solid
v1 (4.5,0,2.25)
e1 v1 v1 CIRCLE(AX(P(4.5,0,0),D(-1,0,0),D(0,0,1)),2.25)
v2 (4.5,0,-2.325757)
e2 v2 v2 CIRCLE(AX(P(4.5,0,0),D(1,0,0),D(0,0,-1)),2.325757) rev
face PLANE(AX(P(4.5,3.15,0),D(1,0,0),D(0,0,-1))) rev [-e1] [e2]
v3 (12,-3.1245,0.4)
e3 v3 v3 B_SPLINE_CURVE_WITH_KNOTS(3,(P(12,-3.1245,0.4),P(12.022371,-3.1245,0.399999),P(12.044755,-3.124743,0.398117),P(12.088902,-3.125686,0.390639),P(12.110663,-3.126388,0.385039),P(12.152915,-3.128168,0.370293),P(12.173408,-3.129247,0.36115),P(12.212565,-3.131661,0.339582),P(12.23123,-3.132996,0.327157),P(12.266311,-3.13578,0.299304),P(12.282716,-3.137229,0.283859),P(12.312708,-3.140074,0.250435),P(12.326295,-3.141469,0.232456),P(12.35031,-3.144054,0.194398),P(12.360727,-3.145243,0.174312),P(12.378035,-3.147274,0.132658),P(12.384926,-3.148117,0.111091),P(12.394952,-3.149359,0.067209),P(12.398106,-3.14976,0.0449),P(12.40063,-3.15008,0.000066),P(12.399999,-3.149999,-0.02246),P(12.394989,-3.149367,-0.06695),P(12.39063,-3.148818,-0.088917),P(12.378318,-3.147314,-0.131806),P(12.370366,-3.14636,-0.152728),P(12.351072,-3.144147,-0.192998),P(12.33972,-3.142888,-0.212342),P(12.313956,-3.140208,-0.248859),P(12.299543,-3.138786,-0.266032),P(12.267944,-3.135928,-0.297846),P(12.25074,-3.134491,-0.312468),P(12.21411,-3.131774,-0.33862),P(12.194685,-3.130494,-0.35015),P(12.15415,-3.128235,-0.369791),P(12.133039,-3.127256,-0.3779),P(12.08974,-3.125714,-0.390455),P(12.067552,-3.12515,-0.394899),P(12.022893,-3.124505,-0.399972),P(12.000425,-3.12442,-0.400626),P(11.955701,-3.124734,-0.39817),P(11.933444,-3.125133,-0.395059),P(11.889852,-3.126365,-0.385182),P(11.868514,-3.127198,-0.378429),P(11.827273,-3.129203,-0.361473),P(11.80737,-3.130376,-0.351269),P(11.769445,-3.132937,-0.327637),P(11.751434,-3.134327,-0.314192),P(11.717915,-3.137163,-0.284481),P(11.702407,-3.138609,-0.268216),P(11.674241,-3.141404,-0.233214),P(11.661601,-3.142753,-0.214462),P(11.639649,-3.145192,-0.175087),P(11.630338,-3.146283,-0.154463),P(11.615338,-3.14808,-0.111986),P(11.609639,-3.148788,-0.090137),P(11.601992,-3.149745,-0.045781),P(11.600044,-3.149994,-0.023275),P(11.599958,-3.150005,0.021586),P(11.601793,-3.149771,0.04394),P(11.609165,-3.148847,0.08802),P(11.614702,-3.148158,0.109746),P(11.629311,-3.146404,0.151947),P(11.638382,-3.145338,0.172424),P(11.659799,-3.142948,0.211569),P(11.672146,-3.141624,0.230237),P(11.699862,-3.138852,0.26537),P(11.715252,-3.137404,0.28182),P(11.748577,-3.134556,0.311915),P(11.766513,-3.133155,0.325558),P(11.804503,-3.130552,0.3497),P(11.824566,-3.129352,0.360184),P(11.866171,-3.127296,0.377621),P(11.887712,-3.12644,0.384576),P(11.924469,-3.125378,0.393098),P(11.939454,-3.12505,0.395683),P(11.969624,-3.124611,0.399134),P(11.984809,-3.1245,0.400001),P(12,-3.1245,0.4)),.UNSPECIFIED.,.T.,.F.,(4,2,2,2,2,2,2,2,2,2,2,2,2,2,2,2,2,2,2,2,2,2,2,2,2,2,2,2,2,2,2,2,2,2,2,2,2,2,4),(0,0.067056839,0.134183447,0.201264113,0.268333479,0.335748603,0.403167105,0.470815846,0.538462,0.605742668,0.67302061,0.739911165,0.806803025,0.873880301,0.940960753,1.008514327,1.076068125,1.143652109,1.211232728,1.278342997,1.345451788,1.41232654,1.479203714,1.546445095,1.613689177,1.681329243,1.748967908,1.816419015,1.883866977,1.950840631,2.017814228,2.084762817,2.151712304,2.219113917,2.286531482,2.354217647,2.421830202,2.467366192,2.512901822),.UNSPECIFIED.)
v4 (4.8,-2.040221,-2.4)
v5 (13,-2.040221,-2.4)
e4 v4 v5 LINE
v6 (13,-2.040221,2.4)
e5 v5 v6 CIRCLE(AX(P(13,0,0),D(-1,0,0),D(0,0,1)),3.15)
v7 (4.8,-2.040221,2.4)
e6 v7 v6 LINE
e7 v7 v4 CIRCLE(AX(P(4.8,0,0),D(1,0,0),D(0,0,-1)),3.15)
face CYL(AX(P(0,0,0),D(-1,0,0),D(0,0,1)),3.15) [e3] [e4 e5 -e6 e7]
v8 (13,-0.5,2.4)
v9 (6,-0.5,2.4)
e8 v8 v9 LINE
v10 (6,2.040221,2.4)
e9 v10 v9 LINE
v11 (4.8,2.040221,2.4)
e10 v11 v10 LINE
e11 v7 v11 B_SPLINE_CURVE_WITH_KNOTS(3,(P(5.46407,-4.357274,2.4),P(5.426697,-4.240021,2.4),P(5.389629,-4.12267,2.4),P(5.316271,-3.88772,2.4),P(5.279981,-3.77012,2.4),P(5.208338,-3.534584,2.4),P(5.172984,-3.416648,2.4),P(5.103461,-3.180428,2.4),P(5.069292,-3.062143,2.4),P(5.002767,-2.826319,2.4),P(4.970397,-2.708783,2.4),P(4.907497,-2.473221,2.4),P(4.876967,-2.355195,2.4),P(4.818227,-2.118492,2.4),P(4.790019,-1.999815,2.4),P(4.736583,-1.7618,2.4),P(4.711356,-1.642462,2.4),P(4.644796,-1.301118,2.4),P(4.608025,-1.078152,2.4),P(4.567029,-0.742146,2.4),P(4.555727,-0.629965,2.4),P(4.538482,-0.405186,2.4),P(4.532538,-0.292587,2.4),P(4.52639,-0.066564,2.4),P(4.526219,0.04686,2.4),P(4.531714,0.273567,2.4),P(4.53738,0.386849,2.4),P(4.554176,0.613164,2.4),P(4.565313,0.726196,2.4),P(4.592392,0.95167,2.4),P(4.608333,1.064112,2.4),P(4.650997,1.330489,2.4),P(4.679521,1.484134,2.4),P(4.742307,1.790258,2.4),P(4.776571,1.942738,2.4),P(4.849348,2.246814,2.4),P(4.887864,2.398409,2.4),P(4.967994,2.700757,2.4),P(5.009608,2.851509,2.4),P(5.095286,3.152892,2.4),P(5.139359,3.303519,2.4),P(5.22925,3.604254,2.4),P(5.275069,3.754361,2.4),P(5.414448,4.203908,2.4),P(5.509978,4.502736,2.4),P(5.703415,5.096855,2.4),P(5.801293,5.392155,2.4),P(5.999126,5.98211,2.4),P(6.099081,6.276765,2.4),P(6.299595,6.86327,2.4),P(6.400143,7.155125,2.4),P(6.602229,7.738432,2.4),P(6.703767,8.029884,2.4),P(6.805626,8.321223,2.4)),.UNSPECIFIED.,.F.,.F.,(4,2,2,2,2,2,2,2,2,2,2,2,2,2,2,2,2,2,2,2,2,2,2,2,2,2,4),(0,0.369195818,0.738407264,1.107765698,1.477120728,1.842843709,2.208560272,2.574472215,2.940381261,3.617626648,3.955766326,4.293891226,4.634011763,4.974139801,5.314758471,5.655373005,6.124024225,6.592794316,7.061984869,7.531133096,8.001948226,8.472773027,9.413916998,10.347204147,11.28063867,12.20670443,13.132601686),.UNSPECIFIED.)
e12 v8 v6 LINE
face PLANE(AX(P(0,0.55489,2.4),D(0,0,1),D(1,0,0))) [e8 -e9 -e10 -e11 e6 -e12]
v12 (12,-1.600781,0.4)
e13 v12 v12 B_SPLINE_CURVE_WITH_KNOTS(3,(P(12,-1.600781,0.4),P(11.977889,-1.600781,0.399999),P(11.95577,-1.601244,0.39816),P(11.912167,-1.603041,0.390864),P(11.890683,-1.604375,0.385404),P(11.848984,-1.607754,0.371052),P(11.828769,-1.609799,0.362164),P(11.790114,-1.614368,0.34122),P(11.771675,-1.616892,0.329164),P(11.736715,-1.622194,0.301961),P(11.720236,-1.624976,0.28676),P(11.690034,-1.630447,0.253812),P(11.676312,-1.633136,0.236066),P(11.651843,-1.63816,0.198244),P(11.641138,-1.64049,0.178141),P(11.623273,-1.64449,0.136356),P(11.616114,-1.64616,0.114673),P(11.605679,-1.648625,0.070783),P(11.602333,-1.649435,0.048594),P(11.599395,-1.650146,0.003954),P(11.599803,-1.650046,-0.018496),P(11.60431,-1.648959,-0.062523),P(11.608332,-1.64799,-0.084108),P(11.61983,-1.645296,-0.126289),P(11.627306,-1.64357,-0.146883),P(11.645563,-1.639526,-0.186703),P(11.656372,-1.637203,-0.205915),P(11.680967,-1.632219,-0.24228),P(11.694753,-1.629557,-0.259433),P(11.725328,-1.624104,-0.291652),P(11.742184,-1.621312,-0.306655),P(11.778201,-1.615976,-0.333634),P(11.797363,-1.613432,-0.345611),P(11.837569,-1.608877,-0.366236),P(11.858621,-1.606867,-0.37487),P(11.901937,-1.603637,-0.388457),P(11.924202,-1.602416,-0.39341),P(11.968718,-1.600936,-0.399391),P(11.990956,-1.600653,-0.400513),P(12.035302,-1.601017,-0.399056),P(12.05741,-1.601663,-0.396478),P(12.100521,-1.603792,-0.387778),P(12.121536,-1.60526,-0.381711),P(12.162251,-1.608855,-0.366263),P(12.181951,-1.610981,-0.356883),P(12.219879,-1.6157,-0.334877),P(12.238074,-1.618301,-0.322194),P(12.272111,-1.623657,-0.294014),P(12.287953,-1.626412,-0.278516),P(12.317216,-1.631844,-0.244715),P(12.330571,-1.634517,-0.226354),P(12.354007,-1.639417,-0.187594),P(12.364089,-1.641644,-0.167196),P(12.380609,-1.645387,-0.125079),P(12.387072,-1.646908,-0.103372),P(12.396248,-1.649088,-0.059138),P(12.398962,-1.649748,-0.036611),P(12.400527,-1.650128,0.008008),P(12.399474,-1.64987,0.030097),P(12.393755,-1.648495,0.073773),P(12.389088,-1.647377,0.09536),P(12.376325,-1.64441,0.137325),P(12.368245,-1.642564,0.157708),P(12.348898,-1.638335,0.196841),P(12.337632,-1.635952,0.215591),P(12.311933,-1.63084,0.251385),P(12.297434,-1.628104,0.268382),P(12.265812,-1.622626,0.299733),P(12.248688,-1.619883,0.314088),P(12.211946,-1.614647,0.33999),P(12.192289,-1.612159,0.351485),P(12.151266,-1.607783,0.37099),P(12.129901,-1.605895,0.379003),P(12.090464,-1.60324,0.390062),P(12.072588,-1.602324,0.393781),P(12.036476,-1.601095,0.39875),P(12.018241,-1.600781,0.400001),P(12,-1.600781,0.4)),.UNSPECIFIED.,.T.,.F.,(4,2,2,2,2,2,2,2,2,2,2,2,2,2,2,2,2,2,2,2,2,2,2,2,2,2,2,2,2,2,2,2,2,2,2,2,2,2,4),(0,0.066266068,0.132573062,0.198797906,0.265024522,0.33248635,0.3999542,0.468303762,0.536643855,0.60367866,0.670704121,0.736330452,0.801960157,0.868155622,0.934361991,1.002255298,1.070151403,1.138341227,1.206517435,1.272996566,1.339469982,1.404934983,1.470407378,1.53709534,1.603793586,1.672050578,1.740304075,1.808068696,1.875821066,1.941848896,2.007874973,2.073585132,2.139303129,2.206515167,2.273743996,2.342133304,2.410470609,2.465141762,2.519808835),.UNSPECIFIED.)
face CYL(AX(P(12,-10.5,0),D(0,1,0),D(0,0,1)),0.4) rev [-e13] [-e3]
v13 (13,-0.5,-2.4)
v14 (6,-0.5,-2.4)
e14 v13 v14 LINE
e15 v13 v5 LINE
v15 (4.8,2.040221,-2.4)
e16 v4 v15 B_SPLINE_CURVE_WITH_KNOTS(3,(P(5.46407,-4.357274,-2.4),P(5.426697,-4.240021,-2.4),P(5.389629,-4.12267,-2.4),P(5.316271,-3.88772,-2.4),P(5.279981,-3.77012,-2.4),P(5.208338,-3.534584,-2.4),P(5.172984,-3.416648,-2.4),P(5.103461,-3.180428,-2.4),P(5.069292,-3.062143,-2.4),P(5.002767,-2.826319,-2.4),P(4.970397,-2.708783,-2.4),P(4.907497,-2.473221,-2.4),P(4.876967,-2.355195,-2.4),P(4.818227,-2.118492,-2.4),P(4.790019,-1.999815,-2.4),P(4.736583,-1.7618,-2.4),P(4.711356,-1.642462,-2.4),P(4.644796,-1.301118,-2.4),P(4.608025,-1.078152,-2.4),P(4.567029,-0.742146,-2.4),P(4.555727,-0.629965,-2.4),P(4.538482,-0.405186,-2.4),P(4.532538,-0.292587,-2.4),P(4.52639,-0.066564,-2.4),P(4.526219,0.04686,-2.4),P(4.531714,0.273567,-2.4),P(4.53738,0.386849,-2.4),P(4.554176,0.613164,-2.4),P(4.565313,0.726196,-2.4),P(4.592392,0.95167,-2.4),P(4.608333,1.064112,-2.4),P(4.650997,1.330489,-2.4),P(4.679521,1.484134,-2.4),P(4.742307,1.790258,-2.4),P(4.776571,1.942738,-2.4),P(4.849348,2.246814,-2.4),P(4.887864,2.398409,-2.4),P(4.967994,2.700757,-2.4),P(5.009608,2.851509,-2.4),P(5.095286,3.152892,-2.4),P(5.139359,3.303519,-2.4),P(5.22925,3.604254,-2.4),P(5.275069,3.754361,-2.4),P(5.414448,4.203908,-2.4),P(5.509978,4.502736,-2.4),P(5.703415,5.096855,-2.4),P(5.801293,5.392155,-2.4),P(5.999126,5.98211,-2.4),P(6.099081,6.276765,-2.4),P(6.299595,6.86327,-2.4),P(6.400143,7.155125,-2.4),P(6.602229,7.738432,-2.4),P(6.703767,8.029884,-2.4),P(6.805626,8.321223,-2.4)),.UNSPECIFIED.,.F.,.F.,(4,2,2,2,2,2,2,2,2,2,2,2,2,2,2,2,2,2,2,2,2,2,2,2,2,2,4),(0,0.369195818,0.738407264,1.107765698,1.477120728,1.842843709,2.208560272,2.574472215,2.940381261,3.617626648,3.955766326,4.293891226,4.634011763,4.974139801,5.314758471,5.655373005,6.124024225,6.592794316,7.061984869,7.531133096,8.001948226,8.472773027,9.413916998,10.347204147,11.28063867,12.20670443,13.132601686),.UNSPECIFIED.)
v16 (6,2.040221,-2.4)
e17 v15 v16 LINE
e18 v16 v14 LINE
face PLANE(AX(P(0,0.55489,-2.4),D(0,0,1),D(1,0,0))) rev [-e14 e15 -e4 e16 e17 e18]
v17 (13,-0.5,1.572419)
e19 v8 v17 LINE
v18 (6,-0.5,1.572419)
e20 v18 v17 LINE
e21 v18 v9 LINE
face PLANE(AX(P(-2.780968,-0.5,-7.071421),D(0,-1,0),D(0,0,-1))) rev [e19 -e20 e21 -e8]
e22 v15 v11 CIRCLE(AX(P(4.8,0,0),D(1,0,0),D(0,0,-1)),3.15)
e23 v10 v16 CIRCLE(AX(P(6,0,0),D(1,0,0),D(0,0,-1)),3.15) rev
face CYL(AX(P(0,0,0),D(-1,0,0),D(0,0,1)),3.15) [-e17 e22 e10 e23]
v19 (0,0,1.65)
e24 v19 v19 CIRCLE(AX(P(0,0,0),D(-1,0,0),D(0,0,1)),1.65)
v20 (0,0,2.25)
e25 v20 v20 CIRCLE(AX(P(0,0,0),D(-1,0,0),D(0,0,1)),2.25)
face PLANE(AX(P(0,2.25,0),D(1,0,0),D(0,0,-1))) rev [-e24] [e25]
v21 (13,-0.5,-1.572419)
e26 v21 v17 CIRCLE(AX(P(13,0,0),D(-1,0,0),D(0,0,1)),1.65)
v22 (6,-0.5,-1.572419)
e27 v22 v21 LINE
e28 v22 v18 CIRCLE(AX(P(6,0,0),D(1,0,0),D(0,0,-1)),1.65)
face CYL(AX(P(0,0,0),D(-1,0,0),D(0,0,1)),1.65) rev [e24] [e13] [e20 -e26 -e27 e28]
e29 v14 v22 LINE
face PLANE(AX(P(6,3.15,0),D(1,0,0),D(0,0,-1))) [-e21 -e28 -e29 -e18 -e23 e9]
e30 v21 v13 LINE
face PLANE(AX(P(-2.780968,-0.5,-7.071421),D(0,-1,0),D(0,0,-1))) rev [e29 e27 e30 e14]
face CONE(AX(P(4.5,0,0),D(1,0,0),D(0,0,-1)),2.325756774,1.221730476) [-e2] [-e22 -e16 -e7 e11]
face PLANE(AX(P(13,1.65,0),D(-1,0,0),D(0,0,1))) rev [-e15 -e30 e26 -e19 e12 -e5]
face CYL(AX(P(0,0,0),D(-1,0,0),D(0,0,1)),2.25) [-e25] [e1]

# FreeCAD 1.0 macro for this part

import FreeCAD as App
import Part
import Sketcher

V = App.Vector
Q = App.Units.Quantity


def edges_at(feature, points):
    """Names of the edges that pass closest to the given points."""
    edges = feature.Shape.Edges
    near = lambda p: min(range(len(edges)), key=lambda i: edges[i].distToShape(Part.Vertex(*p))[0])
    return sorted({f"Edge{near(p) + 1}" for p in points})

doc = App.newDocument("Part")
body = doc.addObject("PartDesign::Body", "Body")

sketch1 = body.newObject("Sketcher::SketchObject", "Sketch")
sketch1.AttachmentSupport = (doc.getObject("XY_Plane"), [""])
sketch1.MapMode = "FlatFace"
sketch1.addGeometry([
    Part.LineSegment(V(0, 1.6, 0), V(13, 1.6, 0)),
    Part.LineSegment(V(13, 1.6, 0), V(13, 3.1, 0)),
    Part.LineSegment(V(13, 3.1, 0), V(4.5, 3.1, 0)),
    Part.LineSegment(V(4.5, 3.1, 0), V(4.5, 2.2, 0)),
    Part.LineSegment(V(4.5, 2.2, 0), V(0, 2.2, 0)),
    Part.LineSegment(V(0, 2.2, 0), V(0, 1.6, 0)),
], False)
sketch1.addConstraint([
    Sketcher.Constraint("Coincident", 0, 2, 1, 1),
    Sketcher.Constraint("Coincident", 1, 2, 2, 1),
    Sketcher.Constraint("Coincident", 2, 2, 3, 1),
    Sketcher.Constraint("Coincident", 3, 2, 4, 1),
    Sketcher.Constraint("Coincident", 4, 2, 5, 1),
    Sketcher.Constraint("Coincident", 5, 2, 0, 1),
    Sketcher.Constraint("Horizontal", 0),
    Sketcher.Constraint("Vertical", 1),
    Sketcher.Constraint("Horizontal", 2),
    Sketcher.Constraint("Vertical", 3),
    Sketcher.Constraint("Horizontal", 4),
    Sketcher.Constraint("Vertical", 5),
    Sketcher.Constraint("PointOnObject", 4, 2, -2),
    Sketcher.Constraint("DistanceX", 0, 1, 0, 2, Q("13 mm")),
    Sketcher.Constraint("DistanceX", 2, 2, 2, 1, Q("8.5 mm")),
    Sketcher.Constraint("DistanceY", 1, 1, 1, 2, Q("1.5 mm")),
    Sketcher.Constraint("DistanceY", 3, 2, 3, 1, Q("0.9 mm")),
    Sketcher.Constraint("DistanceY", -1, 1, 0, 2, Q("1.65 mm")),
])
revolution = body.newObject("PartDesign::Revolution", "Revolution")
revolution.Profile = sketch1
revolution.ReferenceAxis = (sketch1, ["H_Axis"])
revolution.Angle = 360

sketch2 = body.newObject("Sketcher::SketchObject", "Sketch001")
sketch2.AttachmentSupport = (doc.getObject("YZ_Plane"), [""])
sketch2.MapMode = "FlatFace"
sketch2.AttachmentOffset = App.Placement(V(0, 0, 13), App.Rotation())
sketch2.addGeometry([
    Part.LineSegment(V(0, 28, 0), V(0, -28, 0)),
    Part.LineSegment(V(0, -28, 0), V(48, -28, 0)),
    Part.LineSegment(V(48, -28, 0), V(48, 28, 0)),
    Part.LineSegment(V(48, 28, 0), V(0, 28, 0)),
], False)
sketch2.addConstraint([
    Sketcher.Constraint("Coincident", 0, 2, 1, 1),
    Sketcher.Constraint("Coincident", 1, 2, 2, 1),
    Sketcher.Constraint("Coincident", 2, 2, 3, 1),
    Sketcher.Constraint("Coincident", 3, 2, 0, 1),
    Sketcher.Constraint("Vertical", 0),
    Sketcher.Constraint("Horizontal", 1),
    Sketcher.Constraint("Vertical", 2),
    Sketcher.Constraint("Horizontal", 3),
    Sketcher.Constraint("DistanceX", 0, 2, -1, 1, Q("0.5 mm")),
    Sketcher.Constraint("DistanceX", 1, 1, 1, 2, Q("48.985763 mm")),
    Sketcher.Constraint("DistanceY", 0, 2, 0, 1, Q("55.205892 mm")),
    Sketcher.Constraint("DistanceY", 0, 2, -1, 1, Q("27.602946 mm")),
])
pocket1 = body.newObject("PartDesign::Pocket", "Pocket")
pocket1.Profile = sketch2
pocket1.Length = 7
doc.recompute()

chamfer = body.newObject("PartDesign::Chamfer", "Chamfer")
chamfer.Base = (pocket1, edges_at(pocket1, [(4.5, -3.15, 0)]))
chamfer.ChamferType = "Two distances"
chamfer.Size = 0.3
chamfer.Size2 = 0.824243

sketch3 = body.newObject("Sketcher::SketchObject", "Sketch002")
sketch3.AttachmentSupport = (doc.getObject("XZ_Plane"), [""])
sketch3.MapMode = "FlatFace"
sketch3.AttachmentOffset = App.Placement(V(0, 0, 0.5), App.Rotation())
sketch3.addGeometry(Part.Circle(V(12, 0, 0), V(0, 0, 1), 0.4), False)
sketch3.addConstraint([
    Sketcher.Constraint("PointOnObject", 0, 3, -1),
    Sketcher.Constraint("Diameter", 0, Q("0.8 mm")),
    Sketcher.Constraint("DistanceX", -1, 1, 0, 3, Q("12 mm")),
])
pocket2 = body.newObject("PartDesign::Pocket", "Pocket001")
pocket2.Profile = sketch3
pocket2.Length = 10
pocket2.Reversed = True

sketch4 = body.newObject("Sketcher::SketchObject", "Sketch003")
sketch4.AttachmentSupport = (doc.getObject("YZ_Plane"), [""])
sketch4.MapMode = "FlatFace"
sketch4.AttachmentOffset = App.Placement(V(0, 0, 6), App.Rotation())
sketch4.addGeometry([
    Part.LineSegment(V(2, -2.4, 0), V(2, -3.7, 0)),
    Part.LineSegment(V(2, -3.7, 0), V(-2, -3.7, 0)),
    Part.LineSegment(V(-2, -3.7, 0), V(-2, -2.4, 0)),
    Part.LineSegment(V(-2, -2.4, 0), V(2, -2.4, 0)),
    Part.LineSegment(V(2, 4, 0), V(2, 2.4, 0)),
    Part.LineSegment(V(2, 2.4, 0), V(-2, 2.4, 0)),
    Part.LineSegment(V(-2, 2.4, 0), V(-2, 4, 0)),
    Part.LineSegment(V(-2, 4, 0), V(2, 4, 0)),
], False)
sketch4.addConstraint([
    Sketcher.Constraint("Coincident", 0, 2, 1, 1),
    Sketcher.Constraint("Coincident", 1, 2, 2, 1),
    Sketcher.Constraint("Coincident", 2, 2, 3, 1),
    Sketcher.Constraint("Coincident", 3, 2, 0, 1),
    Sketcher.Constraint("Coincident", 4, 2, 5, 1),
    Sketcher.Constraint("Coincident", 5, 2, 6, 1),
    Sketcher.Constraint("Coincident", 6, 2, 7, 1),
    Sketcher.Constraint("Coincident", 7, 2, 4, 1),
    Sketcher.Constraint("Vertical", 0),
    Sketcher.Constraint("Horizontal", 1),
    Sketcher.Constraint("Vertical", 2),
    Sketcher.Constraint("Horizontal", 3),
    Sketcher.Constraint("Vertical", 4),
    Sketcher.Constraint("Horizontal", 5),
    Sketcher.Constraint("Vertical", 6),
    Sketcher.Constraint("Horizontal", 7),
    Sketcher.Constraint("Symmetric", 2, 2, 4, 2, -1, 1),
    Sketcher.Constraint("Vertical", 3, 2, 4, 2),
    Sketcher.Constraint("Vertical", 2, 2, 5, 2),
    Sketcher.Constraint("DistanceY", 2, 2, -1, 1, Q("2.4 mm")),
    Sketcher.Constraint("DistanceX", 1, 2, 1, 1, Q("4.080441 mm")),
    Sketcher.Constraint("DistanceY", 4, 2, 4, 1, Q("1.627959 mm")),
    Sketcher.Constraint("DistanceY", 1, 2, 6, 2, Q("7.727301 mm")),
])
pocket3 = body.newObject("PartDesign::Pocket", "Pocket002")
pocket3.Profile = sketch4
pocket3.Type = "ThroughAll"
pocket3.Midplane = True

doc.recompute()
